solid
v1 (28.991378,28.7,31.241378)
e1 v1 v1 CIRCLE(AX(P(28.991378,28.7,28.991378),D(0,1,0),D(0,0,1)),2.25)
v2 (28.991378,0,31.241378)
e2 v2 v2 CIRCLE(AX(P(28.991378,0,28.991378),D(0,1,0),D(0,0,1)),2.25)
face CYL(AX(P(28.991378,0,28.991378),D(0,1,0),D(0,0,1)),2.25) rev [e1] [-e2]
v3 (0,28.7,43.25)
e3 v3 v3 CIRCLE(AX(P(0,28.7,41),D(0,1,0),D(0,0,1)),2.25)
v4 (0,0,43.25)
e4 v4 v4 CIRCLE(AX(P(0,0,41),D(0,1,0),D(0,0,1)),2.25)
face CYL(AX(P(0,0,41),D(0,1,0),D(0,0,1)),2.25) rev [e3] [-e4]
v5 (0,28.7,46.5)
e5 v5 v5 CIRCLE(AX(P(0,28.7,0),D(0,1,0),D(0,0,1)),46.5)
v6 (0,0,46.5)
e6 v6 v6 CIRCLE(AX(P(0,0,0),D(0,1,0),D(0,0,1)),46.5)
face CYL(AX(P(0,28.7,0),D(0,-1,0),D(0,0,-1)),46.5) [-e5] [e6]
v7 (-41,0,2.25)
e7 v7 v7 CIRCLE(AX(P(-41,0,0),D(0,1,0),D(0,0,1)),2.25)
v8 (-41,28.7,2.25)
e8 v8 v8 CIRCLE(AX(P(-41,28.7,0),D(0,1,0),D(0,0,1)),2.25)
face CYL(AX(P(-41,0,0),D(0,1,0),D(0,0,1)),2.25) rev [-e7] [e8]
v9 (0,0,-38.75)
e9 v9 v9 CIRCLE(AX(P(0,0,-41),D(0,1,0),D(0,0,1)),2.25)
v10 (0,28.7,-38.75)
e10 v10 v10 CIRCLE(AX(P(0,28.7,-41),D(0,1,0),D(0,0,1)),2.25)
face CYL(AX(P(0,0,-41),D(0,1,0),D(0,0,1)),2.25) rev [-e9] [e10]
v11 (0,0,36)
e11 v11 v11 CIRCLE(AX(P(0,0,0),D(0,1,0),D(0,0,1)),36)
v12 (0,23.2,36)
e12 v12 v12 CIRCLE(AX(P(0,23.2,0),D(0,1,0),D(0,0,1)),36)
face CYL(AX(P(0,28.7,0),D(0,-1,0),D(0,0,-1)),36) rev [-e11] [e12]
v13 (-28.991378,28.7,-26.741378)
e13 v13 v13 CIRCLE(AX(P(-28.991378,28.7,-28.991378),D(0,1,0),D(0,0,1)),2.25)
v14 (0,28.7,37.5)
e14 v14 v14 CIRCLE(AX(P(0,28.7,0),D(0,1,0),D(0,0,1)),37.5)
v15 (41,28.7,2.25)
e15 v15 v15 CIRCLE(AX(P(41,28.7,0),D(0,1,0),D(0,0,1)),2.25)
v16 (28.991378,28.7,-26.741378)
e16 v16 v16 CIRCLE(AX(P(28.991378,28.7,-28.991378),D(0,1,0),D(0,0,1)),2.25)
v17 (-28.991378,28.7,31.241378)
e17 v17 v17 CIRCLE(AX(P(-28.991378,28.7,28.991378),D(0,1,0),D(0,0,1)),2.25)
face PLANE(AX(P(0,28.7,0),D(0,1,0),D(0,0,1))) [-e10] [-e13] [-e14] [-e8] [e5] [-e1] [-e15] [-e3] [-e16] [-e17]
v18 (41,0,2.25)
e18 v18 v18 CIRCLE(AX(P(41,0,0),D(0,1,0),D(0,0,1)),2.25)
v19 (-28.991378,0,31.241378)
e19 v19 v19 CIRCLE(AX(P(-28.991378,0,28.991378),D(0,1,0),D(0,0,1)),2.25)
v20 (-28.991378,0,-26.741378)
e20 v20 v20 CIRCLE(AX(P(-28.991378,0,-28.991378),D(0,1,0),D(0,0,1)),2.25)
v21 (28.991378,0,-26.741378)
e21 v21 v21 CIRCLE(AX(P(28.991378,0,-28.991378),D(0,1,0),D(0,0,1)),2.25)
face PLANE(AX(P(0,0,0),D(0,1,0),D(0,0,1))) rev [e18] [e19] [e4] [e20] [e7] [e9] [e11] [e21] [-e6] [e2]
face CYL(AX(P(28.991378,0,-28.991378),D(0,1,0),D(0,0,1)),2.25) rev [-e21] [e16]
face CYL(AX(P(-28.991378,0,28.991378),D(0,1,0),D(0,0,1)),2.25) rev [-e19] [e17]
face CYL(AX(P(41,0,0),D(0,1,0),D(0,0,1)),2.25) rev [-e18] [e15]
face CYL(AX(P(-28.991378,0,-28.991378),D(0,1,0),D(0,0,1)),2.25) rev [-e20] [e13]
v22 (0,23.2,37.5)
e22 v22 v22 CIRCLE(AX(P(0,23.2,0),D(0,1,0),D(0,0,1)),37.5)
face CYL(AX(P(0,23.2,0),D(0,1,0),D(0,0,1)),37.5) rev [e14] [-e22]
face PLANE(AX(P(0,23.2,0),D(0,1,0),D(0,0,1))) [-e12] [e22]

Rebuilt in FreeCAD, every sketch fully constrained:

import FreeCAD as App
import Part
import Sketcher
Q = App.Units.Quantity

doc = App.newDocument("Part")
body = doc.addObject("PartDesign::Body", "Body")

sketch1 = body.newObject("Sketcher::SketchObject", "Sketch")
sketch1.AttachmentSupport = (doc.getObject("XZ_Plane"), [""])
sketch1.MapMode = "FlatFace"
sketch1.addGeometry([
    Part.Circle(App.Vector(0, 0, 0), App.Vector(0, 0, 1), 46),
    Part.Circle(App.Vector(0, 0, 0), App.Vector(0, 0, 1), 36),
], False)
sketch1.addConstraint([
    Sketcher.Constraint("Coincident", 0, 3, -1, 1),
    Sketcher.Constraint("Coincident", 1, 3, -1, 1),
    Sketcher.Constraint("Diameter", 0, Q("93 mm")),
    Sketcher.Constraint("Diameter", 1, Q("72 mm")),
])
pad1 = body.newObject("PartDesign::Pad", "Pad")
pad1.Profile = sketch1
pad1.Length = 28.7
pad1.Reversed = True

sketch2 = body.newObject("Sketcher::SketchObject", "Sketch001")
sketch2.AttachmentSupport = (doc.getObject("XZ_Plane"), [""])
sketch2.MapMode = "FlatFace"
sketch2.AttachmentOffset = App.Placement(App.Vector(0, 0, -28.7), App.Rotation())
sketch2.addGeometry([
    Part.Circle(App.Vector(0, -41, 0), App.Vector(0, 0, 1), 2.2),
    Part.Circle(App.Vector(29, -29, 0), App.Vector(0, 0, 1), 2.2),
    Part.Circle(App.Vector(41, 0, 0), App.Vector(0, 0, 1), 2.2),
    Part.Circle(App.Vector(29, 29, 0), App.Vector(0, 0, 1), 2.2),
    Part.Circle(App.Vector(0, 41, 0), App.Vector(0, 0, 1), 2.2),
    Part.Circle(App.Vector(-29, 29, 0), App.Vector(0, 0, 1), 2.2),
    Part.Circle(App.Vector(-41, 0, 0), App.Vector(0, 0, 1), 2.2),
    Part.Circle(App.Vector(-29, -29, 0), App.Vector(0, 0, 1), 2.2),
], False)
sketch2.addConstraint([
    Sketcher.Constraint("Equal", 0, 1),
    Sketcher.Constraint("Equal", 1, 2),
    Sketcher.Constraint("Equal", 2, 3),
    Sketcher.Constraint("Equal", 3, 4),
    Sketcher.Constraint("Equal", 4, 5),
    Sketcher.Constraint("Equal", 5, 6),
    Sketcher.Constraint("Equal", 6, 7),
    Sketcher.Constraint("Symmetric", 0, 3, 4, 3, -1, 1),
    Sketcher.Constraint("Symmetric", 1, 3, 5, 3, -1, 1),
    Sketcher.Constraint("Symmetric", 2, 3, 6, 3, -1, 1),
    Sketcher.Constraint("Symmetric", 3, 3, 7, 3, -1, 1),
    Sketcher.Constraint("Symmetric", 3, 3, 5, 3, -2),
    Sketcher.Constraint("PointOnObject", 0, 3, -2),
    Sketcher.Constraint("PointOnObject", 2, 3, -1),
    Sketcher.Constraint("Diameter", 0, Q("4.5 mm")),
    Sketcher.Constraint("DistanceY", 0, 3, -1, 1, Q("41 mm")),
    Sketcher.Constraint("DistanceX", -1, 1, 2, 3, Q("41 mm")),
    Sketcher.Constraint("DistanceX", -1, 1, 1, 3, Q("28.991378 mm")),
    Sketcher.Constraint("DistanceY", 1, 3, -1, 1, Q("28.991378 mm")),
])
pocket1 = body.newObject("PartDesign::Pocket", "Pocket")
pocket1.Profile = sketch2
pocket1.Type = "ThroughAll"
pocket1.Reversed = True

sketch3 = body.newObject("Sketcher::SketchObject", "Sketch002")
sketch3.AttachmentSupport = (doc.getObject("XZ_Plane"), [""])
sketch3.MapMode = "FlatFace"
sketch3.AttachmentOffset = App.Placement(App.Vector(0, 0, -23.2), App.Rotation())
sketch3.addGeometry([
    Part.Circle(App.Vector(0, 0, 0), App.Vector(0, 0, 1), 38),
    Part.Circle(App.Vector(0, 0, 0), App.Vector(0, 0, 1), 36),
], False)
sketch3.addConstraint([
    Sketcher.Constraint("Coincident", 0, 3, -1, 1),
    Sketcher.Constraint("Coincident", 1, 3, -1, 1),
    Sketcher.Constraint("Diameter", 0, Q("75 mm")),
    Sketcher.Constraint("Diameter", 1, Q("72 mm")),
])
pocket2 = body.newObject("PartDesign::Pocket", "Pocket001")
pocket2.Profile = sketch3
pocket2.Length = 5.5

doc.recompute()
